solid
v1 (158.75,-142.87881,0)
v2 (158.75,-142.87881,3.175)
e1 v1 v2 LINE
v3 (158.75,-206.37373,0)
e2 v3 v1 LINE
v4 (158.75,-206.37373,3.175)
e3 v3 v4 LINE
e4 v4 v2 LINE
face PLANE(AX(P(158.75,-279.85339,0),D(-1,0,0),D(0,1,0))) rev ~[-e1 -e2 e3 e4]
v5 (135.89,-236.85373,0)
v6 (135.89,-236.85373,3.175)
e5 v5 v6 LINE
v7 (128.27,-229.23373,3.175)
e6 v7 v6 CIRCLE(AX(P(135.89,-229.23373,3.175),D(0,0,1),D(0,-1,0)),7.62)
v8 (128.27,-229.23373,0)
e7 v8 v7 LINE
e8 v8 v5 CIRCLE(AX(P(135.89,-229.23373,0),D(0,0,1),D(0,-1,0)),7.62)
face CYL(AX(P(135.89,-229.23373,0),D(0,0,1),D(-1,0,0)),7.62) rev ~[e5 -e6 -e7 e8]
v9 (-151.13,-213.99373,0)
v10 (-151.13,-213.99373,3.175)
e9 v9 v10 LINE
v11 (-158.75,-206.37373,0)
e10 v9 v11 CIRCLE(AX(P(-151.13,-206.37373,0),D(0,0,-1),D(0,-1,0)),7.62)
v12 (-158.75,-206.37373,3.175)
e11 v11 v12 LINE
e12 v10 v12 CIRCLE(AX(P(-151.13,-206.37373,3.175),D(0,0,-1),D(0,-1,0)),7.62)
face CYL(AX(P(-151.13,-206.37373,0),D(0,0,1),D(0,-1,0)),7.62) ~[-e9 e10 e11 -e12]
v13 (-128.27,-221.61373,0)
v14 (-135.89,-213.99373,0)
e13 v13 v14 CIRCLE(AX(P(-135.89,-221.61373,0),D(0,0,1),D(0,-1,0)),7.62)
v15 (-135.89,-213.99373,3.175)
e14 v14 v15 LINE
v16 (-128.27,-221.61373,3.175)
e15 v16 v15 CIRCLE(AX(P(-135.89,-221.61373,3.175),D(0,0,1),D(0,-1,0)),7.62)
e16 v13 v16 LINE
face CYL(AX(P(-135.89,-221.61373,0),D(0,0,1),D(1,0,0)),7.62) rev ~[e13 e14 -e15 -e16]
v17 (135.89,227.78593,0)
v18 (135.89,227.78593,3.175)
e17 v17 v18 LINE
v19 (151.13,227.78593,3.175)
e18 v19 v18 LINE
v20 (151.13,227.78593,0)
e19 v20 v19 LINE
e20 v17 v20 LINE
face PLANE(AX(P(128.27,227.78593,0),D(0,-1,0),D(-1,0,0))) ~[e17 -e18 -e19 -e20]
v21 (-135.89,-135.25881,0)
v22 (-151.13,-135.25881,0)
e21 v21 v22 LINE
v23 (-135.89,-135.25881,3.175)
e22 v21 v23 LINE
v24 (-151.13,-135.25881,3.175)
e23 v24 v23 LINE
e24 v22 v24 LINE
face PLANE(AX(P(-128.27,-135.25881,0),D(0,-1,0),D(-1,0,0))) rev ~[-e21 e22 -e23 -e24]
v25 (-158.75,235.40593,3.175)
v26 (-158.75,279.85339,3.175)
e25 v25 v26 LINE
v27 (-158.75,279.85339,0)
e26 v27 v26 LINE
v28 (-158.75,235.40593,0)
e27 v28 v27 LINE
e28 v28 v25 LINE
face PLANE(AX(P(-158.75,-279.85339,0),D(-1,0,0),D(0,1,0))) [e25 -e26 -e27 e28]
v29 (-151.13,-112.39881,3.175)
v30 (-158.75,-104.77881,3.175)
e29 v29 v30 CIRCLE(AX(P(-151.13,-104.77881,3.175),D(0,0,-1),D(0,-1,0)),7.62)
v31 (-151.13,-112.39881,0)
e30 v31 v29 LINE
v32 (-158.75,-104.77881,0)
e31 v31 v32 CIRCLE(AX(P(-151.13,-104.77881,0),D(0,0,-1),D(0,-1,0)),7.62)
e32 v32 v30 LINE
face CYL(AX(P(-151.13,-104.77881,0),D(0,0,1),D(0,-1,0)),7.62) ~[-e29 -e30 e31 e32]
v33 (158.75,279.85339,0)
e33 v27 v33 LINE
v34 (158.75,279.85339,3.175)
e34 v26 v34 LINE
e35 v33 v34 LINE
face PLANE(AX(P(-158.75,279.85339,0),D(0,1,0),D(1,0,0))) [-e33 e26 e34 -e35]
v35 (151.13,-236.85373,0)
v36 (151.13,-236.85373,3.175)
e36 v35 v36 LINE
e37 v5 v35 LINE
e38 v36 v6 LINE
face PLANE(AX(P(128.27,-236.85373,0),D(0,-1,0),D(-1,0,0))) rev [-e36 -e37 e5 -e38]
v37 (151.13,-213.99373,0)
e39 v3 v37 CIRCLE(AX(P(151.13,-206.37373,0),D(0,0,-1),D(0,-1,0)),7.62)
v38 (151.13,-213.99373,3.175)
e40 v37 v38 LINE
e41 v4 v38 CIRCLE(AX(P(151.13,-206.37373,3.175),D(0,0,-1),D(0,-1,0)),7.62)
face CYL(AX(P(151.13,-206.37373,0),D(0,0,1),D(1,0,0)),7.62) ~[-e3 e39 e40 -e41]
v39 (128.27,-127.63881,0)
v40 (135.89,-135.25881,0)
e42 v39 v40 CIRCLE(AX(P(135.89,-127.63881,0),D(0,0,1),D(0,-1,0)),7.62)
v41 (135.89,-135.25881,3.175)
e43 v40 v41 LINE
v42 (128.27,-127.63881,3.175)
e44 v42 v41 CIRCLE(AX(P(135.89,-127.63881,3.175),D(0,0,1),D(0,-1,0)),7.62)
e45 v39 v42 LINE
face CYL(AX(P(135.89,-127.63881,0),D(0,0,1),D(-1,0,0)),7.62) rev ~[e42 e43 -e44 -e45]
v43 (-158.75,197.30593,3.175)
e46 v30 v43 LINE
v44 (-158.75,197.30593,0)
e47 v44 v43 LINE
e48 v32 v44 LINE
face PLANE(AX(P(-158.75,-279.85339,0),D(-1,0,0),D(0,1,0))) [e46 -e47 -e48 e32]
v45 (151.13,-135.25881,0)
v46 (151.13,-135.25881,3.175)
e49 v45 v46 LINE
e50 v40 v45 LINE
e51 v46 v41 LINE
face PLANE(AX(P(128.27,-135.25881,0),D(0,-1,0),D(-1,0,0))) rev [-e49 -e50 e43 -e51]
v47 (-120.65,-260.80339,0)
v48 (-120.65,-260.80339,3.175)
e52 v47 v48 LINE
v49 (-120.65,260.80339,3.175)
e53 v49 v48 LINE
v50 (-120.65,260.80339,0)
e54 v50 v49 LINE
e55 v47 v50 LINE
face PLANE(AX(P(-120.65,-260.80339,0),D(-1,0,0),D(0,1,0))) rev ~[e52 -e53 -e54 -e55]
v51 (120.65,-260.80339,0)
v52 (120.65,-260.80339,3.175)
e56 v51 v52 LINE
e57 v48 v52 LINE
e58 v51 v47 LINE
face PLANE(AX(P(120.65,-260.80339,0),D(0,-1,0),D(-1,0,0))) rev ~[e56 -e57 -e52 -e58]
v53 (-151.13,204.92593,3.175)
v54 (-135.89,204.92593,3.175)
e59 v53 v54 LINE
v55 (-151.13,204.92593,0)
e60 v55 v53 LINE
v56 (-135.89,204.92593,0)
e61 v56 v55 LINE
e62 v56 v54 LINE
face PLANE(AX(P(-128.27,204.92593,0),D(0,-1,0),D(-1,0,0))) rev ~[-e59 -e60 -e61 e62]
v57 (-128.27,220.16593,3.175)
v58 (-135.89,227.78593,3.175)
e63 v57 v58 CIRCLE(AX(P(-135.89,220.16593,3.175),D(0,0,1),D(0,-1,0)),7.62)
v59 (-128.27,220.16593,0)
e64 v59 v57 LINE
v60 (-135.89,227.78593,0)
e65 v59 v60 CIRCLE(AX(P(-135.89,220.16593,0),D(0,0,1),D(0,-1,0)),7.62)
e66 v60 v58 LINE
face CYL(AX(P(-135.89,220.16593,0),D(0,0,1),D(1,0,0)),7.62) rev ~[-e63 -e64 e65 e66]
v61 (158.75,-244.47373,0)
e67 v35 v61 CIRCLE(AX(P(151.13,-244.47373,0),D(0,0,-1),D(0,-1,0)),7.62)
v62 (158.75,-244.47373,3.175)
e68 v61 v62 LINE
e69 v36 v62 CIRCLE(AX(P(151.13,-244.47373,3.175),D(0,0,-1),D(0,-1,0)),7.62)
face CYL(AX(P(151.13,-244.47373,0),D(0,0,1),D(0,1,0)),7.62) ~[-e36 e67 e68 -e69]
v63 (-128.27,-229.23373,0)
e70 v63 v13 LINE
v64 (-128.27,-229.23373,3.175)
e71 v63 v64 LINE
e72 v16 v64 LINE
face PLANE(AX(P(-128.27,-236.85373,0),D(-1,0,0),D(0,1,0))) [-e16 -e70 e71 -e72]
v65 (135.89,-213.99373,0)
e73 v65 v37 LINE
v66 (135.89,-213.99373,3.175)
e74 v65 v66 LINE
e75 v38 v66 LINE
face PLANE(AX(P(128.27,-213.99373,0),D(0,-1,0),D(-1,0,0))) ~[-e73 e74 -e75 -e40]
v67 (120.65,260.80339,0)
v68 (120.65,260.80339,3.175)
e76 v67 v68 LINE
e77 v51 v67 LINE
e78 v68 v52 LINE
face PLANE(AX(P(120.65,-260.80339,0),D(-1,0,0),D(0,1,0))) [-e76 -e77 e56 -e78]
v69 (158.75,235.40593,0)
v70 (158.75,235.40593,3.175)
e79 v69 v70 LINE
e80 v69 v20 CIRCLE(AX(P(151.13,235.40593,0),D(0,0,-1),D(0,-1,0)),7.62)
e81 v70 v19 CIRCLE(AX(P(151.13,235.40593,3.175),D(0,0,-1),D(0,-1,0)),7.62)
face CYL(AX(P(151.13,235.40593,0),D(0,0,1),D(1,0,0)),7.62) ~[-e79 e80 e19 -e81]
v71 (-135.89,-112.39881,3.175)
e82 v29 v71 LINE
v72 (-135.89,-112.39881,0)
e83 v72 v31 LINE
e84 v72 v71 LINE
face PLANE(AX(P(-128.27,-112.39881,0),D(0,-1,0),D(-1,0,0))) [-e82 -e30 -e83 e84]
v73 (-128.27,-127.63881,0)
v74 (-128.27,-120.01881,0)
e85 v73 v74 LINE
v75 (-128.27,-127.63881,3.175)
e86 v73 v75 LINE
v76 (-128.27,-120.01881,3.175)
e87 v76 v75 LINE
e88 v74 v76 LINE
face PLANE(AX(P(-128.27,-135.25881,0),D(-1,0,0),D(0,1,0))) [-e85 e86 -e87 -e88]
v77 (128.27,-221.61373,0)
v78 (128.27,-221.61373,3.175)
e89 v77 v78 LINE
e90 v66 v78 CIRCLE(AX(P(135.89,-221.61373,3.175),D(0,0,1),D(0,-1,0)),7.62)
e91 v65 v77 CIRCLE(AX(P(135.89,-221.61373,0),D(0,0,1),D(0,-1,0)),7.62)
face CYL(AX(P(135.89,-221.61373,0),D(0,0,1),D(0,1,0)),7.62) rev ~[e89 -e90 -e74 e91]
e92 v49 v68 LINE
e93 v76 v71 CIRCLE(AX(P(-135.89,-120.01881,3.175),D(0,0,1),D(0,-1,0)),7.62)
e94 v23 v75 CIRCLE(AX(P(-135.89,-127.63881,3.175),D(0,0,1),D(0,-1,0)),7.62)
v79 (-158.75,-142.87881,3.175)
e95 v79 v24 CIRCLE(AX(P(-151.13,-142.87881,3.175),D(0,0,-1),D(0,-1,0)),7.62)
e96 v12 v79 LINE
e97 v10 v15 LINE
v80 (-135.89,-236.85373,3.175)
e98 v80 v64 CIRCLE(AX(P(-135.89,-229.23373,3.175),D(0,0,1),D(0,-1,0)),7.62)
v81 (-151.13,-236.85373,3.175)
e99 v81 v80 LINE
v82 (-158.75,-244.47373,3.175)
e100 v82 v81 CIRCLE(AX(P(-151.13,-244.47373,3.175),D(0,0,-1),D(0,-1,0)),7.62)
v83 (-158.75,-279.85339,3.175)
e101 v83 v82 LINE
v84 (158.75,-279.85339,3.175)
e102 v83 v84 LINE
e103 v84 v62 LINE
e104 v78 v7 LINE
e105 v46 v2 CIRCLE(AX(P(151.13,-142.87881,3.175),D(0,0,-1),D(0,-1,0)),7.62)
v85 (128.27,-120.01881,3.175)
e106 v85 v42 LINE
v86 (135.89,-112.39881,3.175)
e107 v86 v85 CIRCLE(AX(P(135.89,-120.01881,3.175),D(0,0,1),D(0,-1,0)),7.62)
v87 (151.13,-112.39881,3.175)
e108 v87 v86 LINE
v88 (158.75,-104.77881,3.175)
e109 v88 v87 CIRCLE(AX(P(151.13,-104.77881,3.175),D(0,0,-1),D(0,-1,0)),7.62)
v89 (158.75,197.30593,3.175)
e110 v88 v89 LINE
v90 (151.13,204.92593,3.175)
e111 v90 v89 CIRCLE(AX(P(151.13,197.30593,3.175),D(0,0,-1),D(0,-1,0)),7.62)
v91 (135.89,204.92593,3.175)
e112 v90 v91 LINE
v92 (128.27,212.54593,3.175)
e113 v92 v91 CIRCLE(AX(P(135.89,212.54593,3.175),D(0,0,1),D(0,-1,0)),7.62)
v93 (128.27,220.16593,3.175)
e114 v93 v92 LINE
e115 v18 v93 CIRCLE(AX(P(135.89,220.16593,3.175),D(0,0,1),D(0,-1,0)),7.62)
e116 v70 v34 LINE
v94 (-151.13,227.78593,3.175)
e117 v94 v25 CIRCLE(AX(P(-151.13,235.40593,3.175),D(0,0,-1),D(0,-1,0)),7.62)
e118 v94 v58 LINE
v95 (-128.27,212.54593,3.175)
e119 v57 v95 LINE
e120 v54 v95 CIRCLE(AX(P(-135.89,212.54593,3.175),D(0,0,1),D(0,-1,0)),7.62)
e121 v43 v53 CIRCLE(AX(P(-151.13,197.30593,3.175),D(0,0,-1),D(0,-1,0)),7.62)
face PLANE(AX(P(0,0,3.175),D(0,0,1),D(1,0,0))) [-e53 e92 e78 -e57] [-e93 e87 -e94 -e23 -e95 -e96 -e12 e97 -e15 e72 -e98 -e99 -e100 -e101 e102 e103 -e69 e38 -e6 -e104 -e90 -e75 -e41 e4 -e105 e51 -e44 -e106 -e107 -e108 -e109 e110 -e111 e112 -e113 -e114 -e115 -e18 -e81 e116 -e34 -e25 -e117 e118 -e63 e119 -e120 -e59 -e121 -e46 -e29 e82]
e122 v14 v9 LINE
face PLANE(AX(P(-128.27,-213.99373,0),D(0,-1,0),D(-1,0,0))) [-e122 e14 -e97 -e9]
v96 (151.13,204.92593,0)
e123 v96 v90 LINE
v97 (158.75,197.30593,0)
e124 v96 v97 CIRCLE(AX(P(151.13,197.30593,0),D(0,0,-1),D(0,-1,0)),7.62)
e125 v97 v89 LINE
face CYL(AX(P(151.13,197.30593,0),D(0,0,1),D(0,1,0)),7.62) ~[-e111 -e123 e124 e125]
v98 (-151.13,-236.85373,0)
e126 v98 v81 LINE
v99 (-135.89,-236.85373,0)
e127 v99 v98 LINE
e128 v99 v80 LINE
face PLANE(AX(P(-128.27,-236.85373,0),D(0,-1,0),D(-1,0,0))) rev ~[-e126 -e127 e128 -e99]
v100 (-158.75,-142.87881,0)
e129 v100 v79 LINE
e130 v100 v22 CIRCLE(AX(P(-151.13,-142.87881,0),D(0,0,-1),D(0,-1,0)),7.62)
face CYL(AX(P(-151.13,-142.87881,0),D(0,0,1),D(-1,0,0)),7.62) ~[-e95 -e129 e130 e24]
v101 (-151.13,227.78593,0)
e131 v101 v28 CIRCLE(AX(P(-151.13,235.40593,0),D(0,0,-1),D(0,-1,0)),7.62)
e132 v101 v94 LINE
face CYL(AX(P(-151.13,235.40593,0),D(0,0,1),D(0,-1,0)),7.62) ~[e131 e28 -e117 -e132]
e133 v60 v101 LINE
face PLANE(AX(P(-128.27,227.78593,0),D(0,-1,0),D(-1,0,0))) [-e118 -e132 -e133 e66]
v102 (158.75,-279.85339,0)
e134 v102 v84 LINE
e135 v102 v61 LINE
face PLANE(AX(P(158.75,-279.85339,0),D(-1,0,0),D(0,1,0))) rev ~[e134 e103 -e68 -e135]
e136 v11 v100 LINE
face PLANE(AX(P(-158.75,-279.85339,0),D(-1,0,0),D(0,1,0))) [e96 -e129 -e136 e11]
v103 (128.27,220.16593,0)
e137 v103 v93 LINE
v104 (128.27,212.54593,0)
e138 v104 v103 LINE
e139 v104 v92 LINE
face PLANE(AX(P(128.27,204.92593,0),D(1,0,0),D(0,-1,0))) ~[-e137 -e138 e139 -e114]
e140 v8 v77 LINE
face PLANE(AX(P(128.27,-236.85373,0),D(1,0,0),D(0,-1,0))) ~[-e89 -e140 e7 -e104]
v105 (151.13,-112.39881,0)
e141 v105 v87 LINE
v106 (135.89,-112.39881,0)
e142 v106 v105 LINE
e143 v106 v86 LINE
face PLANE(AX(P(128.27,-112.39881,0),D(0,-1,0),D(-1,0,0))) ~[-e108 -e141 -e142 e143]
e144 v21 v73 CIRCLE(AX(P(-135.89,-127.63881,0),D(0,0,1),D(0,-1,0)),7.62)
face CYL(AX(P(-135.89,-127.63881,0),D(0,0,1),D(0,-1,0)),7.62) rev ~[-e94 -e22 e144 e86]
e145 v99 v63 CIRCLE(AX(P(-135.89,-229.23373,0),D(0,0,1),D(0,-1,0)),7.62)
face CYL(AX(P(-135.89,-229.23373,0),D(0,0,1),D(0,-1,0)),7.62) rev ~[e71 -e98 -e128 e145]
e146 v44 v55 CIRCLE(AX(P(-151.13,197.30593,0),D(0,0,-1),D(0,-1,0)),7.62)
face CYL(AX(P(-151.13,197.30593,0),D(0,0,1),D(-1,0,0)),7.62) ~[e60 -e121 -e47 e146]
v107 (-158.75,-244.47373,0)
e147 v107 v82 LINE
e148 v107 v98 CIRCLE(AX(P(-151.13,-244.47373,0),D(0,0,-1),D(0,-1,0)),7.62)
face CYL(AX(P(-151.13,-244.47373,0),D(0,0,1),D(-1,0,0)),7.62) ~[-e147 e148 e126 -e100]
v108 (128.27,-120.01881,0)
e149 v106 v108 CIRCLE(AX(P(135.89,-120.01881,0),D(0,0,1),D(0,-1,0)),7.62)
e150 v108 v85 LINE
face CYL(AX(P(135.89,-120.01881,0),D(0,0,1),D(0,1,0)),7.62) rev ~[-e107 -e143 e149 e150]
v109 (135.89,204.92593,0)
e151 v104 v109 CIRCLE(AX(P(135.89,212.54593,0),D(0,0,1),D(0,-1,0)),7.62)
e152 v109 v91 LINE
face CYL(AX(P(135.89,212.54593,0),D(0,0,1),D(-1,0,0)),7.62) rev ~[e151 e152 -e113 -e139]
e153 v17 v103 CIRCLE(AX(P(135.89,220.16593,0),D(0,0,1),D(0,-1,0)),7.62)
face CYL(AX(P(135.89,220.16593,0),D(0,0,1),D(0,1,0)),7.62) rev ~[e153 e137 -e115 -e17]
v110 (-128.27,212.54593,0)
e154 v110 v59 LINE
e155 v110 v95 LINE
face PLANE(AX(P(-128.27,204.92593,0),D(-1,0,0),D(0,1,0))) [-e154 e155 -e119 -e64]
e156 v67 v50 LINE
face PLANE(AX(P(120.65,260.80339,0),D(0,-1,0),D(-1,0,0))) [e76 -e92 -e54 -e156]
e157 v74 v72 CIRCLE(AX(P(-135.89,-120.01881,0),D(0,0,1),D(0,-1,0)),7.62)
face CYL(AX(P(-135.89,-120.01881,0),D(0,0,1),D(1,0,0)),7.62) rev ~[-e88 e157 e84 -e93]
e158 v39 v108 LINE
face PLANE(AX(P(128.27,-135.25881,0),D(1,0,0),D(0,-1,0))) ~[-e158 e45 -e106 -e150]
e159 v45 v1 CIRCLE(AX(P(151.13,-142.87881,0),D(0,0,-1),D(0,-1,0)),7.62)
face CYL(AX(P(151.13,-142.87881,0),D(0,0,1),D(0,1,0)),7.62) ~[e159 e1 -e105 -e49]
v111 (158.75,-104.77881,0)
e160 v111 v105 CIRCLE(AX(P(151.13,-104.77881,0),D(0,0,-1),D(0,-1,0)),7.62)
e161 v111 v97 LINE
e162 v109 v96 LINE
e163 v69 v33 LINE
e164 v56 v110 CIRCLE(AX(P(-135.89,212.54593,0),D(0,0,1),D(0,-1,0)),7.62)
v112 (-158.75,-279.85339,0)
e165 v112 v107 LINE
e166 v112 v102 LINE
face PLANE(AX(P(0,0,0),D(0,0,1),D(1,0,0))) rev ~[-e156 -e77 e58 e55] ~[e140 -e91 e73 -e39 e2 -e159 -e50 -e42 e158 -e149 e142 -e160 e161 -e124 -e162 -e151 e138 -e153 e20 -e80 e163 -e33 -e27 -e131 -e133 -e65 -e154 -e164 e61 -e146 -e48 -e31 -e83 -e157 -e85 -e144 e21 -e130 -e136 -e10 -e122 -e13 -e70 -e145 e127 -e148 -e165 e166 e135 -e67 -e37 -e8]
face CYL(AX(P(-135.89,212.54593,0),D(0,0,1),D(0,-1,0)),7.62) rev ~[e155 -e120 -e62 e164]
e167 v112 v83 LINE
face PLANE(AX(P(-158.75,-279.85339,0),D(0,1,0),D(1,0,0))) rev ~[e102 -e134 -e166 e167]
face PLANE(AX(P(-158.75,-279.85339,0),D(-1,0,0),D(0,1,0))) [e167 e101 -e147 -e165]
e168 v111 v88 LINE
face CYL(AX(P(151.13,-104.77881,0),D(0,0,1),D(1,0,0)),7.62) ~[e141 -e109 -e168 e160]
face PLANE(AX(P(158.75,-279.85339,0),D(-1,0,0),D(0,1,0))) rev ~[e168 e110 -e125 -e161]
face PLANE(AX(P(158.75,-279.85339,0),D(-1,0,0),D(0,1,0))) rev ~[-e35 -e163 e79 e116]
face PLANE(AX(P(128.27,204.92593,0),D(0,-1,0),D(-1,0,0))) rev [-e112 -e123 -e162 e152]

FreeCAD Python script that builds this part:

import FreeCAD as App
import Part
import Sketcher

V = App.Vector
Q = App.Units.Quantity


def edges_at(feature, points):
    """Names of the edges that pass closest to the given points."""
    edges = feature.Shape.Edges
    near = lambda p: min(range(len(edges)), key=lambda i: edges[i].distToShape(Part.Vertex(*p))[0])
    return sorted({f"Edge{near(p) + 1}" for p in points})

doc = App.newDocument("Part")
body = doc.addObject("PartDesign::Body", "Body")

sketch1 = body.newObject("Sketcher::SketchObject", "Sketch")
sketch1.AttachmentSupport = (doc.getObject("XY_Plane"), [""])
sketch1.MapMode = "FlatFace"
sketch1.addGeometry([
    Part.LineSegment(V(-159, 280, 0), V(-159, -280, 0)),
    Part.LineSegment(V(-159, -280, 0), V(159, -280, 0)),
    Part.LineSegment(V(159, -280, 0), V(159, 280, 0)),
    Part.LineSegment(V(159, 280, 0), V(-159, 280, 0)),
], False)
sketch1.addConstraint([
    Sketcher.Constraint("Coincident", 0, 2, 1, 1),
    Sketcher.Constraint("Coincident", 1, 2, 2, 1),
    Sketcher.Constraint("Coincident", 2, 2, 3, 1),
    Sketcher.Constraint("Coincident", 3, 2, 0, 1),
    Sketcher.Constraint("Vertical", 0),
    Sketcher.Constraint("Horizontal", 1),
    Sketcher.Constraint("Vertical", 2),
    Sketcher.Constraint("Horizontal", 3),
    Sketcher.Constraint("Symmetric", 0, 2, 2, 2, -1, 1),
    Sketcher.Constraint("DistanceX", 1, 1, 1, 2, Q("12.5 in")),
    Sketcher.Constraint("DistanceY", 0, 2, 0, 1, Q("22.0357 in")),
])
pad1 = body.newObject("PartDesign::Pad", "Pad")
pad1.Profile = sketch1
pad1.Length = Q("0.125 in")

sketch2 = body.newObject("Sketcher::SketchObject", "Sketch001")
sketch2.AttachmentSupport = (doc.getObject("XY_Plane"), [""])
sketch2.MapMode = "FlatFace"
sketch2.addGeometry([
    Part.LineSegment(V(-128, 228, 0), V(-128, 205, 0)),
    Part.LineSegment(V(-128, 205, 0), V(-159, 205, 0)),
    Part.LineSegment(V(-159, 205, 0), V(-159, 228, 0)),
    Part.LineSegment(V(-159, 228, 0), V(-128, 228, 0)),
    Part.LineSegment(V(-128, -112, 0), V(-128, -135, 0)),
    Part.LineSegment(V(-128, -135, 0), V(-159, -135, 0)),
    Part.LineSegment(V(-159, -135, 0), V(-159, -112, 0)),
    Part.LineSegment(V(-159, -112, 0), V(-128, -112, 0)),
    Part.LineSegment(V(-128, -214, 0), V(-128, -237, 0)),
    Part.LineSegment(V(-128, -237, 0), V(-159, -237, 0)),
    Part.LineSegment(V(-159, -237, 0), V(-159, -214, 0)),
    Part.LineSegment(V(-159, -214, 0), V(-128, -214, 0)),
], False)
sketch2.addConstraint([
    Sketcher.Constraint("Coincident", 0, 2, 1, 1),
    Sketcher.Constraint("Coincident", 1, 2, 2, 1),
    Sketcher.Constraint("Coincident", 2, 2, 3, 1),
    Sketcher.Constraint("Coincident", 3, 2, 0, 1),
    Sketcher.Constraint("Coincident", 4, 2, 5, 1),
    Sketcher.Constraint("Coincident", 5, 2, 6, 1),
    Sketcher.Constraint("Coincident", 6, 2, 7, 1),
    Sketcher.Constraint("Coincident", 7, 2, 4, 1),
    Sketcher.Constraint("Coincident", 8, 2, 9, 1),
    Sketcher.Constraint("Coincident", 9, 2, 10, 1),
    Sketcher.Constraint("Coincident", 10, 2, 11, 1),
    Sketcher.Constraint("Coincident", 11, 2, 8, 1),
    Sketcher.Constraint("Vertical", 0),
    Sketcher.Constraint("Horizontal", 1),
    Sketcher.Constraint("Vertical", 2),
    Sketcher.Constraint("Horizontal", 3),
    Sketcher.Constraint("Vertical", 4),
    Sketcher.Constraint("Horizontal", 5),
    Sketcher.Constraint("Vertical", 6),
    Sketcher.Constraint("Horizontal", 7),
    Sketcher.Constraint("Vertical", 8),
    Sketcher.Constraint("Horizontal", 9),
    Sketcher.Constraint("Vertical", 10),
    Sketcher.Constraint("Horizontal", 11),
    Sketcher.Constraint("Vertical", 3, 2, 4, 2),
    Sketcher.Constraint("Vertical", 2, 2, 5, 2),
    Sketcher.Constraint("Vertical", 7, 2, 8, 2),
    Sketcher.Constraint("Vertical", 6, 2, 9, 2),
    Sketcher.Constraint("Equal", 2, 4),
    Sketcher.Constraint("Equal", 6, 8),
    Sketcher.Constraint("DistanceX", 1, 2, 1, 1, Q("1.2 in")),
    Sketcher.Constraint("DistanceY", 0, 2, 0, 1, Q("0.9 in")),
    Sketcher.Constraint("DistanceX", 0, 2, -1, 1, Q("5.05 in")),
    Sketcher.Constraint("DistanceY", 4, 2, 0, 2, Q("13.3931 in")),
    Sketcher.Constraint("DistanceY", 8, 2, 4, 2, Q("3.9998 in")),
    Sketcher.Constraint("DistanceY", -1, 1, 0, 2, Q("204.92593 mm")),
])
pocket1 = body.newObject("PartDesign::Pocket", "Pocket")
pocket1.Profile = sketch2
pocket1.Type = "ThroughAll"
pocket1.Reversed = True
doc.recompute()

mirrored = body.newObject("PartDesign::Mirrored", "Mirrored")
mirrored.Originals = [pocket1]
mirrored.MirrorPlane = (doc.getObject("YZ_Plane"), [""])
body.Tip = mirrored
doc.recompute()

fillet = body.newObject("PartDesign::Fillet", "Fillet")
fillet.Base = (mirrored, edges_at(mirrored, [
    (-128.27, 227.786, 1.587),
    (-158.75, 227.786, 1.587),
    (-158.75, 204.926, 1.587),
    (-128.27, 204.926, 1.587),
    (-128.27, -135.259, 1.587),
    (-128.27, -112.399, 1.587),
    (-158.75, -112.399, 1.587),
    (-158.75, -135.259, 1.587),
    (-128.27, -236.854, 1.587),
    (-128.27, -213.994, 1.587),
    (-158.75, -213.994, 1.587),
    (-158.75, -236.854, 1.587),
    (158.75, 227.786, 1.587),
    (128.27, 227.786, 1.587),
    (128.27, 204.926, 1.587),
    (158.75, 204.926, 1.587),
    (128.27, -112.399, 1.587),
    (128.27, -135.259, 1.587),
    (158.75, -135.259, 1.587),
    (158.75, -112.399, 1.587),
    (128.27, -213.994, 1.587),
    (128.27, -236.854, 1.587),
    (158.75, -236.854, 1.587),
    (158.75, -213.994, 1.587),
]))
fillet.Radius = Q("0.3 in")

sketch3 = body.newObject("Sketcher::SketchObject", "Sketch002")
sketch3.AttachmentSupport = (doc.getObject("XY_Plane"), [""])
sketch3.MapMode = "FlatFace"
sketch3.addGeometry([
    Part.LineSegment(V(121, 261, 0), V(121, -261, 0)),
    Part.LineSegment(V(121, -261, 0), V(-121, -261, 0)),
    Part.LineSegment(V(-121, -261, 0), V(-121, 261, 0)),
    Part.LineSegment(V(-121, 261, 0), V(121, 261, 0)),
], False)
sketch3.addConstraint([
    Sketcher.Constraint("Coincident", 0, 2, 1, 1),
    Sketcher.Constraint("Coincident", 1, 2, 2, 1),
    Sketcher.Constraint("Coincident", 2, 2, 3, 1),
    Sketcher.Constraint("Coincident", 3, 2, 0, 1),
    Sketcher.Constraint("Vertical", 0),
    Sketcher.Constraint("Horizontal", 1),
    Sketcher.Constraint("Vertical", 2),
    Sketcher.Constraint("Horizontal", 3),
    Sketcher.Constraint("Symmetric", 0, 2, 2, 2, -1, 1),
    Sketcher.Constraint("DistanceX", 1, 2, 1, 1, Q("9.5 in")),
    Sketcher.Constraint("DistanceY", 0, 2, 0, 1, Q("20.5357 in")),
])
pocket2 = body.newObject("PartDesign::Pocket", "Pocket001")
pocket2.Profile = sketch3
pocket2.Type = "ThroughAll"
pocket2.Reversed = True

doc.recompute()
